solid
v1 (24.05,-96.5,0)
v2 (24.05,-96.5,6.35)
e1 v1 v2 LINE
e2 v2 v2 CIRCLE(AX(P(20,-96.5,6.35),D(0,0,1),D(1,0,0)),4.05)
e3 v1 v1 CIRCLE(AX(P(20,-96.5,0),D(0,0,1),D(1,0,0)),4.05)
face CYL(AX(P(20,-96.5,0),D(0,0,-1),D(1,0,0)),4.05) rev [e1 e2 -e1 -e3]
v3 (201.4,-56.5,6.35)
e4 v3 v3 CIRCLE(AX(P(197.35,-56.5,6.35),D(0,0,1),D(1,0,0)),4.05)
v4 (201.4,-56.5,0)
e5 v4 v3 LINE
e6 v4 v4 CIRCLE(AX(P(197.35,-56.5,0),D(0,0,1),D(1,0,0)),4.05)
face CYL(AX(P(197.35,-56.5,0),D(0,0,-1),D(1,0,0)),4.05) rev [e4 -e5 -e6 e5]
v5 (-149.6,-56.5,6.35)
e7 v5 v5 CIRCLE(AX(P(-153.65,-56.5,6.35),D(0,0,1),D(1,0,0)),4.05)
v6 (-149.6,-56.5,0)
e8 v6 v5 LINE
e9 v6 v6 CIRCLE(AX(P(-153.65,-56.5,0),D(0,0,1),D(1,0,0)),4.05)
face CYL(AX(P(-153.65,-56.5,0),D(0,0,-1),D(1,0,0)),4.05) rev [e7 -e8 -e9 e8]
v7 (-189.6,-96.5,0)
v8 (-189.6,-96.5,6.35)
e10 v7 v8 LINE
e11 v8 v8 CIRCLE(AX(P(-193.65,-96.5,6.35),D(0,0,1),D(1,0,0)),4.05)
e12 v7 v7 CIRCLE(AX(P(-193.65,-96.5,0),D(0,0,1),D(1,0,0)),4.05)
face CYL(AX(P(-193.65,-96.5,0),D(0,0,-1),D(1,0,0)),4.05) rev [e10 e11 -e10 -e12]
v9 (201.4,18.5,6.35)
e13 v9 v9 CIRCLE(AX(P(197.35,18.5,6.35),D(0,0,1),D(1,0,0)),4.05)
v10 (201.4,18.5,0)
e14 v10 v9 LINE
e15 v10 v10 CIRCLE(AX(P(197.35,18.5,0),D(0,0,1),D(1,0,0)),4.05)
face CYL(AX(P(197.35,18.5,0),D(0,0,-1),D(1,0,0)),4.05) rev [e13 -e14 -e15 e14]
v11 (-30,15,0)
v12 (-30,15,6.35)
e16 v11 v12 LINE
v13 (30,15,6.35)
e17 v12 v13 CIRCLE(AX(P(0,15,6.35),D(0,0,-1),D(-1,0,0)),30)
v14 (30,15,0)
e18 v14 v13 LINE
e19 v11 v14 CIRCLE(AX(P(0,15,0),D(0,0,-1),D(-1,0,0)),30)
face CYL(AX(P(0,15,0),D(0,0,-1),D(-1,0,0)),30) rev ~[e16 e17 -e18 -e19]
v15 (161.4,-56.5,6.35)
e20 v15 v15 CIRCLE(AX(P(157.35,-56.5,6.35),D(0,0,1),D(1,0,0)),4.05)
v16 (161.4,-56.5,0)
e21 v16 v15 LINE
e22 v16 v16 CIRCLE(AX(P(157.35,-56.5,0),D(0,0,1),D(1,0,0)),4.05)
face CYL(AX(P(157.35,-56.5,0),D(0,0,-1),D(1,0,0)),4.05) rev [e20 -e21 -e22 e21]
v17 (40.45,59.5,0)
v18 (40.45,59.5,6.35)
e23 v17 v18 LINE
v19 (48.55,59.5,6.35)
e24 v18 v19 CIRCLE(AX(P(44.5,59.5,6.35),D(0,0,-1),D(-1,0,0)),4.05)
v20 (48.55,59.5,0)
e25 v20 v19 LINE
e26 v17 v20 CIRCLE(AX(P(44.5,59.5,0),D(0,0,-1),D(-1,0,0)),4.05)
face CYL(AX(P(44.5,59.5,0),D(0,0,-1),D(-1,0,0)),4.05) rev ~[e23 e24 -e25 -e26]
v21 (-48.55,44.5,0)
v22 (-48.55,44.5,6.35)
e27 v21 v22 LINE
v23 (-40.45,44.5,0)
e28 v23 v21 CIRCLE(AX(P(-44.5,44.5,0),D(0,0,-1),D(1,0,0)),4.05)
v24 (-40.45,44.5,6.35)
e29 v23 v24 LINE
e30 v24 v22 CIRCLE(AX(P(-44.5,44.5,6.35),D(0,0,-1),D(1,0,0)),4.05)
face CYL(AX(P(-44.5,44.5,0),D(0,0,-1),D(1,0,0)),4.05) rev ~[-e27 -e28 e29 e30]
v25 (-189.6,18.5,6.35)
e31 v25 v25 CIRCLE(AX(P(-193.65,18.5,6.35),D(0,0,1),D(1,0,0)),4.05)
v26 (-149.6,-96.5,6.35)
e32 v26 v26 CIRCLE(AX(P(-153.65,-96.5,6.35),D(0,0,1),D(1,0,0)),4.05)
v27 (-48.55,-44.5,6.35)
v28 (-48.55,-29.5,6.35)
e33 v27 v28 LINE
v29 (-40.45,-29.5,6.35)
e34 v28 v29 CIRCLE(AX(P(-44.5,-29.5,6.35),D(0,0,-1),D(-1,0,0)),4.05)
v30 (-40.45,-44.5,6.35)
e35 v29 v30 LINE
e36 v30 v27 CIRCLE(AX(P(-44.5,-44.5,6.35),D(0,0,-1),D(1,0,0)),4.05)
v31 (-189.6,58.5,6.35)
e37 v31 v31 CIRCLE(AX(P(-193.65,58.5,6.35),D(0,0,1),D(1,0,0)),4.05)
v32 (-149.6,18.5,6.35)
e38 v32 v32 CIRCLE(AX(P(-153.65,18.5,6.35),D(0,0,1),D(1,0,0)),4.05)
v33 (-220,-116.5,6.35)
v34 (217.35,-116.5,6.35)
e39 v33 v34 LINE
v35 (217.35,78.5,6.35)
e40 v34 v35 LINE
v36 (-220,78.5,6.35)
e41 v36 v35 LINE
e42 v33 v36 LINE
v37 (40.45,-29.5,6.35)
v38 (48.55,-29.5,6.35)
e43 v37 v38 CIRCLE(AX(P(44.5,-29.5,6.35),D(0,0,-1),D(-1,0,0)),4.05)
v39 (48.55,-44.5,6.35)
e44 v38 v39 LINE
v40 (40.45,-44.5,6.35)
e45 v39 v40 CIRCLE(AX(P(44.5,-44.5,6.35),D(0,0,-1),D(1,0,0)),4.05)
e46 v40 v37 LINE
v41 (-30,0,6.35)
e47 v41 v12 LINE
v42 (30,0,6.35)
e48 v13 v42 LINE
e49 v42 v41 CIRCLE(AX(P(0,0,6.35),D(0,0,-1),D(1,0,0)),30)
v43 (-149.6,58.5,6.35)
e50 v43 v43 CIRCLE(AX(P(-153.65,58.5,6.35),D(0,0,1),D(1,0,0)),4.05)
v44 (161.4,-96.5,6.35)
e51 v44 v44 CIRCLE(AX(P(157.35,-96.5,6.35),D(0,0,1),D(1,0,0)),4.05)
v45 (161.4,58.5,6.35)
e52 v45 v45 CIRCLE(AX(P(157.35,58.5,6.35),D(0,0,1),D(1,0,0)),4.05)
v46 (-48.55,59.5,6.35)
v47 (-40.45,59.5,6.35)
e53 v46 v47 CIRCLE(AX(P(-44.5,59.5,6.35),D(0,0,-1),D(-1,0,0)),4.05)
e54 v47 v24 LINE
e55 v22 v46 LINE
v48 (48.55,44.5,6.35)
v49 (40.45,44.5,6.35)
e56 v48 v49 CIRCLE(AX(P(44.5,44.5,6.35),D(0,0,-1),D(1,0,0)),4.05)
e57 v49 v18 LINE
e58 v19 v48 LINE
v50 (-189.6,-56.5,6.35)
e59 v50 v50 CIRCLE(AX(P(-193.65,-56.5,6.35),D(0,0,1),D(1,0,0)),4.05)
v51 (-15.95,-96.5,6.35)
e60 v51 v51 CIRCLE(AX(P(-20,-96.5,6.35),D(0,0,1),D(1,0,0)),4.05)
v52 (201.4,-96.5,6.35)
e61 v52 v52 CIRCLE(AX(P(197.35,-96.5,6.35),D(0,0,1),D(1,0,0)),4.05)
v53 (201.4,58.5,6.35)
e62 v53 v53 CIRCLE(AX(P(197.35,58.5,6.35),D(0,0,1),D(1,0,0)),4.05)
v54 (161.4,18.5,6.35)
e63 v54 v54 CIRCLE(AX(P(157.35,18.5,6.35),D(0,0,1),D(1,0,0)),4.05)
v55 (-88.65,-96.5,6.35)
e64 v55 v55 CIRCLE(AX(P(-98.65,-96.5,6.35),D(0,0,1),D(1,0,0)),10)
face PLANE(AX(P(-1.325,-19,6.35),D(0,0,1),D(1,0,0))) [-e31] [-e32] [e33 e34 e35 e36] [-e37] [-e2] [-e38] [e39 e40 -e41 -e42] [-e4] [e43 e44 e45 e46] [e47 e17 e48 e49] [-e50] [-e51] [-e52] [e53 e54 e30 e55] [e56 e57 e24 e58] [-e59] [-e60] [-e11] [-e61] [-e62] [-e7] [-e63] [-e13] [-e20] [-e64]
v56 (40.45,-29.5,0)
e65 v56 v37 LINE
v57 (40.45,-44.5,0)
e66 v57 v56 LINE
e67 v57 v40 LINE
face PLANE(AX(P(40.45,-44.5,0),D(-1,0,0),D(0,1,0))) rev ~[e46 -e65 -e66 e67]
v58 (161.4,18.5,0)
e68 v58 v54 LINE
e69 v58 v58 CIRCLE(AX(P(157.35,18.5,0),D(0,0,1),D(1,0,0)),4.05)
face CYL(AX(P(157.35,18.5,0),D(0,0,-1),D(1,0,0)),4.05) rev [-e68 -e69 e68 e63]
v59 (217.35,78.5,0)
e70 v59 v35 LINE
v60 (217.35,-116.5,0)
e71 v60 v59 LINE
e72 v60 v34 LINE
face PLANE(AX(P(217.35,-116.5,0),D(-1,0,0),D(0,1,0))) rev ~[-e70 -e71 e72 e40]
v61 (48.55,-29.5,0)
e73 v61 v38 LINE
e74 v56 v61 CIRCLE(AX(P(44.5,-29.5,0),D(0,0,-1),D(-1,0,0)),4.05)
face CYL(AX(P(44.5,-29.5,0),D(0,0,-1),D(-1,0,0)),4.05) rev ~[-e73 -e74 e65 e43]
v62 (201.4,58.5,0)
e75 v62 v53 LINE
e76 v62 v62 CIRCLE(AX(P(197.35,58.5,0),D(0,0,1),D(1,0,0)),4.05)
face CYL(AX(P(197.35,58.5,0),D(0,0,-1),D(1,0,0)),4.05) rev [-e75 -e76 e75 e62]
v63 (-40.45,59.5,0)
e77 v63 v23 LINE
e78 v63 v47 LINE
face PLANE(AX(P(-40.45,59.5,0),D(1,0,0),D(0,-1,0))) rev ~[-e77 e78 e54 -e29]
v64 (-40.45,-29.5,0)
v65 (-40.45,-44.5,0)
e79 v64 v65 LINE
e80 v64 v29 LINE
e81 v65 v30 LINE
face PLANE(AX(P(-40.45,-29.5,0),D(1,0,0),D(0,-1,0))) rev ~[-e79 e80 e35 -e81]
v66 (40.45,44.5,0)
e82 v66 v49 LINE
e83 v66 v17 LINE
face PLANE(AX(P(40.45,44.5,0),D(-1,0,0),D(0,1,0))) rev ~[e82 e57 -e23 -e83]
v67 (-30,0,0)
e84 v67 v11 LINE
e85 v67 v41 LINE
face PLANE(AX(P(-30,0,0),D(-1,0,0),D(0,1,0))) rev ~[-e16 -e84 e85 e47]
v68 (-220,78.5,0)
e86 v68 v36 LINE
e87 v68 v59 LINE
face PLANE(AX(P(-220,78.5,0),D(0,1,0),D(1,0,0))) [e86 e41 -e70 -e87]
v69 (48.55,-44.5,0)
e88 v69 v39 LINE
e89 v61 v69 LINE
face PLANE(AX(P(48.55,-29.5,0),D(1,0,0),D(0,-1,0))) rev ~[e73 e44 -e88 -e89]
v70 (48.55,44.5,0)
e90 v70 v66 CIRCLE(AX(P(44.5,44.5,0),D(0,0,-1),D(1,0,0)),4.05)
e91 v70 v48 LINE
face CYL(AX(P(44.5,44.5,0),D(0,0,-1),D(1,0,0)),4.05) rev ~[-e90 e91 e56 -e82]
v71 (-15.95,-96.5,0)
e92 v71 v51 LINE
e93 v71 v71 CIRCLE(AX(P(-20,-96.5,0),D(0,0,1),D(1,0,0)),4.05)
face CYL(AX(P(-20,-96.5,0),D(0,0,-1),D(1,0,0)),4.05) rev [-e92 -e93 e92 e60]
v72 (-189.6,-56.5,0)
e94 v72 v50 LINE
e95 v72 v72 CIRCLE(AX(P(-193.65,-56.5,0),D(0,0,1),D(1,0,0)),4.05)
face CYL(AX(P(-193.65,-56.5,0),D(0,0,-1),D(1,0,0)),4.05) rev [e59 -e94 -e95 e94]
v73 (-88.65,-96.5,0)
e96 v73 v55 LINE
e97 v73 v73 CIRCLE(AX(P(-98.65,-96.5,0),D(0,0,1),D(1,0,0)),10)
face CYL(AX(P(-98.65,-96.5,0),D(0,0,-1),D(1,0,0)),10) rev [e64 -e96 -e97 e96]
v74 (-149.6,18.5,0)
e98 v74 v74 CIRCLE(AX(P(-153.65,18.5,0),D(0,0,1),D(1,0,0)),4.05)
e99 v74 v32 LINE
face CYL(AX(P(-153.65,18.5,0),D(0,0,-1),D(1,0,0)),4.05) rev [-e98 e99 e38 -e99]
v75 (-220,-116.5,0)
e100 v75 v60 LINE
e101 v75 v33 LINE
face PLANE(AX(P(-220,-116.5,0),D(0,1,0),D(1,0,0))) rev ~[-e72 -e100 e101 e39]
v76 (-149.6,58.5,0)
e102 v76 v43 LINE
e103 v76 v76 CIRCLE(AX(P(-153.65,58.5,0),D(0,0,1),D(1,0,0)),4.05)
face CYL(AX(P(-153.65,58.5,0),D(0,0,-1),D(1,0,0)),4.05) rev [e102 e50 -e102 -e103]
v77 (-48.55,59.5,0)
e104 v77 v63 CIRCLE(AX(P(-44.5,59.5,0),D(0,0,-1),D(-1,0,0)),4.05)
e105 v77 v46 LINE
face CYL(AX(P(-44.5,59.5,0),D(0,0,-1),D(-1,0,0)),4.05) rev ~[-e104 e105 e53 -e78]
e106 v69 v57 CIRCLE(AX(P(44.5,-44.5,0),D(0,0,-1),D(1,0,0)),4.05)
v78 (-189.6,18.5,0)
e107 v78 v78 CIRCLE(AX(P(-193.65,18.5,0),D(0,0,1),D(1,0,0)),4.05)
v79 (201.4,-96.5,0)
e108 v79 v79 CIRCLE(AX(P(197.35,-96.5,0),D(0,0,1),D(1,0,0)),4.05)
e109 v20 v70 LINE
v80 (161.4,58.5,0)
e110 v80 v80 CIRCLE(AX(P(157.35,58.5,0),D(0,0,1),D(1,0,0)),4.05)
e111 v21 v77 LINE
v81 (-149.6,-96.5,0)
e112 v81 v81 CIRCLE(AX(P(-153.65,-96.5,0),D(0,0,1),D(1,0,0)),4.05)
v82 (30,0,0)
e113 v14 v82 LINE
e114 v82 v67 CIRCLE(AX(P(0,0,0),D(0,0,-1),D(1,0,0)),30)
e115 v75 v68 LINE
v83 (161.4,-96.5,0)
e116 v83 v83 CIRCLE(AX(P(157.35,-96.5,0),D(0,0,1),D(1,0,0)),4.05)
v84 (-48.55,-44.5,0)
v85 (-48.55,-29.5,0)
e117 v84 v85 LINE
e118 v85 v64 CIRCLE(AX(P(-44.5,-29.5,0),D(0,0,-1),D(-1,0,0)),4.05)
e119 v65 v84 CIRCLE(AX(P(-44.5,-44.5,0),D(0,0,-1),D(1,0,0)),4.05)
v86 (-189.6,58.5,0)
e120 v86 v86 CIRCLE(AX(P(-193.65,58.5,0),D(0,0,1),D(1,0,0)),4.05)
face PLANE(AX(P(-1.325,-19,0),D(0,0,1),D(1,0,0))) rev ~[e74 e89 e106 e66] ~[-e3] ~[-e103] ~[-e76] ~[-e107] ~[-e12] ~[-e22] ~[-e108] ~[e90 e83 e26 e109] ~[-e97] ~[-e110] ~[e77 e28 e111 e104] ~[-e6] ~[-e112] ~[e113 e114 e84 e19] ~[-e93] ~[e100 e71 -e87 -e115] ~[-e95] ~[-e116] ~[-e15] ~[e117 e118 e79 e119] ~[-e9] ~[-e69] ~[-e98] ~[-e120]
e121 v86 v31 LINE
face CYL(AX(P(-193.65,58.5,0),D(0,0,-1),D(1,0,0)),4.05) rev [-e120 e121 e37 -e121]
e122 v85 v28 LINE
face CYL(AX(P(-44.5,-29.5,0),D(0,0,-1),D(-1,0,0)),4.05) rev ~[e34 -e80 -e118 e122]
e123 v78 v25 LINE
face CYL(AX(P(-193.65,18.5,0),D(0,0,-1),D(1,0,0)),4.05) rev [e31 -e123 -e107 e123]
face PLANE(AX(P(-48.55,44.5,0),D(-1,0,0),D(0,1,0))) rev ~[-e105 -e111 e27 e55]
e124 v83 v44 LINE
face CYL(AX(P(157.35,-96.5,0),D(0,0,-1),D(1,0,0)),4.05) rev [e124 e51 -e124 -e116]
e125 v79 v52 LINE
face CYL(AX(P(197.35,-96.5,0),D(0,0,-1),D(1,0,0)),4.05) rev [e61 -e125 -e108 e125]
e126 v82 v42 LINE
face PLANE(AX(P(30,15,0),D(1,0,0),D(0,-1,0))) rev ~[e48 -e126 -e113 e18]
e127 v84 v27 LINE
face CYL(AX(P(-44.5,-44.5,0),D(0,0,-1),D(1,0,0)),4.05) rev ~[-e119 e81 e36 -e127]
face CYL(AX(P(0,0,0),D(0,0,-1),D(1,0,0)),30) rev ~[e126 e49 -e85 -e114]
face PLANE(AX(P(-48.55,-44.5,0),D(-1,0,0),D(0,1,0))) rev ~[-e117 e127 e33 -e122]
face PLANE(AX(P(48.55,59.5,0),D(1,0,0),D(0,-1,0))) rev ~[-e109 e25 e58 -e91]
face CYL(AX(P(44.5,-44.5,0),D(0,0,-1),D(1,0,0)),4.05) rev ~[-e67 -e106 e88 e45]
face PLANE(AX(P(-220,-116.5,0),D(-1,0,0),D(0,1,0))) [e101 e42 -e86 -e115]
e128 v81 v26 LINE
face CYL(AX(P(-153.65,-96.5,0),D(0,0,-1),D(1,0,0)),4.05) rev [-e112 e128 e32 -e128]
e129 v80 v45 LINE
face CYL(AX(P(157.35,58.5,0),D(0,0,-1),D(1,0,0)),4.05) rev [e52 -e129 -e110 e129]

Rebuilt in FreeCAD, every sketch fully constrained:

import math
import FreeCAD as App
import Part
import Sketcher
Q = App.Units.Quantity

doc = App.newDocument("Part")
body = doc.addObject("PartDesign::Body", "Body")

# Sketch on XY plane
sketch1 = body.newObject("Sketcher::SketchObject", "Sketch")
sketch1.AttachmentSupport = (doc.getObject("XY_Plane"), [""])
sketch1.MapMode = "FlatFace"
sketch1.addGeometry([
    Part.LineSegment(App.Vector(-220, 78.5, 0), App.Vector(-220, -116.5, 0)),  # 0
    Part.LineSegment(App.Vector(-220, -116.5, 0), App.Vector(217.35, -116.5, 0)),  # 1
    Part.LineSegment(App.Vector(217.35, -116.5, 0), App.Vector(217.35, 78.5, 0)),  # 2
    Part.LineSegment(App.Vector(217.35, 78.5, 0), App.Vector(-220, 78.5, 0)),  # 3
    Part.Circle(App.Vector(-193.65, -96.5, 0), App.Vector(0, 0, 1), 4.05),  # 4
    Part.Circle(App.Vector(-153.65, -96.5, 0), App.Vector(0, 0, 1), 4.05),  # 5
    Part.Circle(App.Vector(-98.65, -96.5, 0), App.Vector(0, 0, 1), 10),  # 6
    Part.Circle(App.Vector(-20, -96.5, 0), App.Vector(0, 0, 1), 4.05),  # 7
    Part.Circle(App.Vector(-193.65, -56.5, 0), App.Vector(0, 0, 1), 4.05),  # 8
    Part.Circle(App.Vector(-153.65, -56.5, 0), App.Vector(0, 0, 1), 4.05),  # 9
    Part.ArcOfCircle(Part.Circle(App.Vector(-44.5, -44.5, 0), App.Vector(0, 0, 1), 4.05), math.radians(180), math.radians(360)),  # 10
    Part.LineSegment(App.Vector(-48.55, -44.5, 0), App.Vector(-48.55, -29.5, 0)),  # 11
    Part.ArcOfCircle(Part.Circle(App.Vector(-44.5, -29.5, 0), App.Vector(0, 0, 1), 4.05), math.radians(0), math.radians(180)),  # 12
    Part.LineSegment(App.Vector(-40.45, -29.5, 0), App.Vector(-40.45, -44.5, 0)),  # 13
    Part.Circle(App.Vector(20, -96.5, 0), App.Vector(0, 0, 1), 4.05),  # 14
    Part.Circle(App.Vector(157.35, -96.5, 0), App.Vector(0, 0, 1), 4.05),  # 15
    Part.Circle(App.Vector(197.35, -96.5, 0), App.Vector(0, 0, 1), 4.05),  # 16
    Part.ArcOfCircle(Part.Circle(App.Vector(44.5, -44.5, 0), App.Vector(0, 0, 1), 4.05), math.radians(180), math.radians(360)),  # 17
    Part.LineSegment(App.Vector(40.45, -44.5, 0), App.Vector(40.45, -29.5, 0)),  # 18
    Part.ArcOfCircle(Part.Circle(App.Vector(44.5, -29.5, 0), App.Vector(0, 0, 1), 4.05), math.radians(0), math.radians(180)),  # 19
    Part.LineSegment(App.Vector(48.55, -29.5, 0), App.Vector(48.55, -44.5, 0)),  # 20
    Part.Circle(App.Vector(157.35, -56.5, 0), App.Vector(0, 0, 1), 4.05),  # 21
    Part.Circle(App.Vector(197.35, -56.5, 0), App.Vector(0, 0, 1), 4.05),  # 22
    Part.Circle(App.Vector(-193.65, 18.5, 0), App.Vector(0, 0, 1), 4.05),  # 23
    Part.Circle(App.Vector(-153.65, 18.5, 0), App.Vector(0, 0, 1), 4.05),  # 24
    Part.ArcOfCircle(Part.Circle(App.Vector(0, 0, 0), App.Vector(0, 0, 1), 30), math.radians(180), math.radians(360)),  # 25
    Part.LineSegment(App.Vector(-30, 0, 0), App.Vector(-30, 15, 0)),  # 26
    Part.ArcOfCircle(Part.Circle(App.Vector(0, 15, 0), App.Vector(0, 0, 1), 30), math.radians(0), math.radians(180)),  # 27
    Part.LineSegment(App.Vector(30, 15, 0), App.Vector(30, 0, 0)),  # 28
    Part.Circle(App.Vector(-193.65, 58.5, 0), App.Vector(0, 0, 1), 4.05),  # 29
    Part.Circle(App.Vector(-153.65, 58.5, 0), App.Vector(0, 0, 1), 4.05),  # 30
    Part.ArcOfCircle(Part.Circle(App.Vector(-44.5, 44.5, 0), App.Vector(0, 0, 1), 4.05), math.radians(180), math.radians(360)),  # 31
    Part.LineSegment(App.Vector(-48.55, 44.5, 0), App.Vector(-48.55, 59.5, 0)),  # 32
    Part.ArcOfCircle(Part.Circle(App.Vector(-44.5, 59.5, 0), App.Vector(0, 0, 1), 4.05), math.radians(0), math.radians(180)),  # 33
    Part.LineSegment(App.Vector(-40.45, 59.5, 0), App.Vector(-40.45, 44.5, 0)),  # 34
    Part.Circle(App.Vector(157.35, 18.5, 0), App.Vector(0, 0, 1), 4.05),  # 35
    Part.Circle(App.Vector(197.35, 18.5, 0), App.Vector(0, 0, 1), 4.05),  # 36
    Part.ArcOfCircle(Part.Circle(App.Vector(44.5, 44.5, 0), App.Vector(0, 0, 1), 4.05), math.radians(180), math.radians(360)),  # 37
    Part.LineSegment(App.Vector(40.45, 44.5, 0), App.Vector(40.45, 59.5, 0)),  # 38
    Part.ArcOfCircle(Part.Circle(App.Vector(44.5, 59.5, 0), App.Vector(0, 0, 1), 4.05), math.radians(0), math.radians(180)),  # 39
    Part.LineSegment(App.Vector(48.55, 59.5, 0), App.Vector(48.55, 44.5, 0)),  # 40
    Part.Circle(App.Vector(157.35, 58.5, 0), App.Vector(0, 0, 1), 4.05),  # 41
    Part.Circle(App.Vector(197.35, 58.5, 0), App.Vector(0, 0, 1), 4.05),  # 42
], False)
sketch1.addConstraint([
    Sketcher.Constraint("Coincident", 0, 2, 1, 1),
    Sketcher.Constraint("Coincident", 1, 2, 2, 1),
    Sketcher.Constraint("Coincident", 2, 2, 3, 1),
    Sketcher.Constraint("Coincident", 3, 2, 0, 1),
    Sketcher.Constraint("Tangent", 10, 1, 11, 1),
    Sketcher.Constraint("Tangent", 11, 2, 12, 2),
    Sketcher.Constraint("Tangent", 12, 1, 13, 1),
    Sketcher.Constraint("Tangent", 13, 2, 10, 2),
    Sketcher.Constraint("Tangent", 17, 1, 18, 1),
    Sketcher.Constraint("Tangent", 18, 2, 19, 2),
    Sketcher.Constraint("Tangent", 19, 1, 20, 1),
    Sketcher.Constraint("Tangent", 20, 2, 17, 2),
    Sketcher.Constraint("Tangent", 25, 1, 26, 1),
    Sketcher.Constraint("Tangent", 26, 2, 27, 2),
    Sketcher.Constraint("Tangent", 27, 1, 28, 1),
    Sketcher.Constraint("Tangent", 28, 2, 25, 2),
    Sketcher.Constraint("Tangent", 31, 1, 32, 1),
    Sketcher.Constraint("Tangent", 32, 2, 33, 2),
    Sketcher.Constraint("Tangent", 33, 1, 34, 1),
    Sketcher.Constraint("Tangent", 34, 2, 31, 2),
    Sketcher.Constraint("Tangent", 37, 1, 38, 1),
    Sketcher.Constraint("Tangent", 38, 2, 39, 2),
    Sketcher.Constraint("Tangent", 39, 1, 40, 1),
    Sketcher.Constraint("Tangent", 40, 2, 37, 2),
    Sketcher.Constraint("Vertical", 0),
    Sketcher.Constraint("Horizontal", 1),
    Sketcher.Constraint("Vertical", 2),
    Sketcher.Constraint("Horizontal", 3),
    Sketcher.Constraint("Vertical", 11),
    Sketcher.Constraint("Vertical", 13),
    Sketcher.Constraint("Vertical", 18),
    Sketcher.Constraint("Vertical", 20),
    Sketcher.Constraint("Vertical", 26),
    Sketcher.Constraint("Vertical", 28),
    Sketcher.Constraint("Vertical", 32),
    Sketcher.Constraint("Vertical", 34),
    Sketcher.Constraint("Vertical", 38),
    Sketcher.Constraint("Vertical", 40),
    Sketcher.Constraint("Coincident", 25, 3, -1, 1),
    Sketcher.Constraint("Equal", 4, 5),
    Sketcher.Constraint("Equal", 5, 7),
    Sketcher.Constraint("Equal", 7, 8),
    Sketcher.Constraint("Equal", 8, 9),
    Sketcher.Constraint("Equal", 9, 10),
    Sketcher.Constraint("Equal", 12, 14),
    Sketcher.Constraint("Equal", 14, 15),
    Sketcher.Constraint("Equal", 15, 16),
    Sketcher.Constraint("Equal", 16, 17),
    Sketcher.Constraint("Equal", 19, 21),
    Sketcher.Constraint("Equal", 21, 22),
    Sketcher.Constraint("Equal", 22, 23),
    Sketcher.Constraint("Equal", 23, 24),
    Sketcher.Constraint("Equal", 24, 29),
    Sketcher.Constraint("Equal", 29, 30),
    Sketcher.Constraint("Equal", 30, 31),
    Sketcher.Constraint("Equal", 33, 35),
    Sketcher.Constraint("Equal", 35, 36),
    Sketcher.Constraint("Equal", 36, 37),
    Sketcher.Constraint("Equal", 39, 41),
    Sketcher.Constraint("Equal", 41, 42),
    Sketcher.Constraint("Symmetric", 17, 3, 31, 3, -1, 1),
    Sketcher.Constraint("Symmetric", 10, 3, 37, 3, -1, 1),
    Sketcher.Constraint("Symmetric", 7, 3, 14, 3, -2),
    Sketcher.Constraint("Symmetric", 10, 3, 17, 3, -2),
    Sketcher.Constraint("Horizontal", 4, 3, 5, 3),
    Sketcher.Constraint("Horizontal", 5, 3, 6, 3),
    Sketcher.Constraint("Horizontal", 6, 3, 7, 3),
    Sketcher.Constraint("Horizontal", 8, 3, 9, 3),
    Sketcher.Constraint("Horizontal", 14, 3, 15, 3),
    Sketcher.Constraint("Horizontal", 15, 3, 16, 3),
    Sketcher.Constraint("Horizontal", 12, 3, 19, 3),
    Sketcher.Constraint("Horizontal", 9, 3, 21, 3),
    Sketcher.Constraint("Horizontal", 21, 3, 22, 3),
    Sketcher.Constraint("Horizontal", 23, 3, 24, 3),
    Sketcher.Constraint("Horizontal", 29, 3, 30, 3),
    Sketcher.Constraint("Horizontal", 24, 3, 35, 3),
    Sketcher.Constraint("Horizontal", 35, 3, 36, 3),
    Sketcher.Constraint("Horizontal", 33, 3, 39, 3),
    Sketcher.Constraint("Horizontal", 30, 3, 41, 3),
    Sketcher.Constraint("Horizontal", 41, 3, 42, 3),
    Sketcher.Constraint("Vertical", 4, 3, 8, 3),
    Sketcher.Constraint("Vertical", 5, 3, 9, 3),
    Sketcher.Constraint("Vertical", 15, 3, 21, 3),
    Sketcher.Constraint("Vertical", 16, 3, 22, 3),
    Sketcher.Constraint("Vertical", 8, 3, 23, 3),
    Sketcher.Constraint("Vertical", 9, 3, 24, 3),
    Sketcher.Constraint("Vertical", 23, 3, 29, 3),
    Sketcher.Constraint("Vertical", 24, 3, 30, 3),
    Sketcher.Constraint("Vertical", 21, 3, 35, 3),
    Sketcher.Constraint("Vertical", 22, 3, 36, 3),
    Sketcher.Constraint("Vertical", 35, 3, 41, 3),
    Sketcher.Constraint("Vertical", 36, 3, 42, 3),
    Sketcher.Constraint("Equal", 20, 26),
    Sketcher.Constraint("Equal", 28, 32),
    Sketcher.Constraint("Diameter", 6, Q("20 mm")),
    Sketcher.Constraint("Radius", 25, Q("30 mm")),
    Sketcher.Constraint("Diameter", 4, Q("8.1 mm")),
    Sketcher.Constraint("DistanceY", 0, 2, 0, 1, Q("195 mm")),
    Sketcher.Constraint("DistanceY", 11, 1, 11, 2, Q("15 mm")),
    Sketcher.Constraint("DistanceX", 7, 3, -1, 1, Q("20 mm")),
    Sketcher.Constraint("DistanceX", 0, 2, -1, 1, Q("220 mm")),
    Sketcher.Constraint("DistanceX", 4, 3, 5, 3, Q("40 mm")),
    Sketcher.Constraint("DistanceX", 5, 3, 6, 3, Q("55 mm")),
    Sketcher.Constraint("DistanceY", 4, 3, 8, 3, Q("40 mm")),
    Sketcher.Constraint("DistanceY", 7, 3, 10, 3, Q("52 mm")),
    Sketcher.Constraint("DistanceX", 6, 3, 15, 3, Q("256 mm")),
    Sketcher.Constraint("DistanceX", 15, 3, 16, 3, Q("40 mm")),
    Sketcher.Constraint("DistanceX", 10, 3, 17, 3, Q("89 mm")),
    Sketcher.Constraint("DistanceY", 8, 3, 23, 3, Q("75 mm")),
    Sketcher.Constraint("DistanceY", 23, 3, 29, 3, Q("40 mm")),
    Sketcher.Constraint("DistanceY", 12, 3, 31, 3, Q("74 mm")),
    Sketcher.Constraint("DistanceY", 0, 2, 4, 3, Q("20 mm")),
    Sketcher.Constraint("DistanceX", 16, 3, 1, 2, Q("20 mm")),
    Sketcher.Constraint("DistanceX", 1, 1, 1, 2, Q("437.35 mm")),
])
pad1 = body.newObject("PartDesign::Pad", "Pad")
pad1.Profile = sketch1
pad1.Length = 6.35

doc.recompute()
